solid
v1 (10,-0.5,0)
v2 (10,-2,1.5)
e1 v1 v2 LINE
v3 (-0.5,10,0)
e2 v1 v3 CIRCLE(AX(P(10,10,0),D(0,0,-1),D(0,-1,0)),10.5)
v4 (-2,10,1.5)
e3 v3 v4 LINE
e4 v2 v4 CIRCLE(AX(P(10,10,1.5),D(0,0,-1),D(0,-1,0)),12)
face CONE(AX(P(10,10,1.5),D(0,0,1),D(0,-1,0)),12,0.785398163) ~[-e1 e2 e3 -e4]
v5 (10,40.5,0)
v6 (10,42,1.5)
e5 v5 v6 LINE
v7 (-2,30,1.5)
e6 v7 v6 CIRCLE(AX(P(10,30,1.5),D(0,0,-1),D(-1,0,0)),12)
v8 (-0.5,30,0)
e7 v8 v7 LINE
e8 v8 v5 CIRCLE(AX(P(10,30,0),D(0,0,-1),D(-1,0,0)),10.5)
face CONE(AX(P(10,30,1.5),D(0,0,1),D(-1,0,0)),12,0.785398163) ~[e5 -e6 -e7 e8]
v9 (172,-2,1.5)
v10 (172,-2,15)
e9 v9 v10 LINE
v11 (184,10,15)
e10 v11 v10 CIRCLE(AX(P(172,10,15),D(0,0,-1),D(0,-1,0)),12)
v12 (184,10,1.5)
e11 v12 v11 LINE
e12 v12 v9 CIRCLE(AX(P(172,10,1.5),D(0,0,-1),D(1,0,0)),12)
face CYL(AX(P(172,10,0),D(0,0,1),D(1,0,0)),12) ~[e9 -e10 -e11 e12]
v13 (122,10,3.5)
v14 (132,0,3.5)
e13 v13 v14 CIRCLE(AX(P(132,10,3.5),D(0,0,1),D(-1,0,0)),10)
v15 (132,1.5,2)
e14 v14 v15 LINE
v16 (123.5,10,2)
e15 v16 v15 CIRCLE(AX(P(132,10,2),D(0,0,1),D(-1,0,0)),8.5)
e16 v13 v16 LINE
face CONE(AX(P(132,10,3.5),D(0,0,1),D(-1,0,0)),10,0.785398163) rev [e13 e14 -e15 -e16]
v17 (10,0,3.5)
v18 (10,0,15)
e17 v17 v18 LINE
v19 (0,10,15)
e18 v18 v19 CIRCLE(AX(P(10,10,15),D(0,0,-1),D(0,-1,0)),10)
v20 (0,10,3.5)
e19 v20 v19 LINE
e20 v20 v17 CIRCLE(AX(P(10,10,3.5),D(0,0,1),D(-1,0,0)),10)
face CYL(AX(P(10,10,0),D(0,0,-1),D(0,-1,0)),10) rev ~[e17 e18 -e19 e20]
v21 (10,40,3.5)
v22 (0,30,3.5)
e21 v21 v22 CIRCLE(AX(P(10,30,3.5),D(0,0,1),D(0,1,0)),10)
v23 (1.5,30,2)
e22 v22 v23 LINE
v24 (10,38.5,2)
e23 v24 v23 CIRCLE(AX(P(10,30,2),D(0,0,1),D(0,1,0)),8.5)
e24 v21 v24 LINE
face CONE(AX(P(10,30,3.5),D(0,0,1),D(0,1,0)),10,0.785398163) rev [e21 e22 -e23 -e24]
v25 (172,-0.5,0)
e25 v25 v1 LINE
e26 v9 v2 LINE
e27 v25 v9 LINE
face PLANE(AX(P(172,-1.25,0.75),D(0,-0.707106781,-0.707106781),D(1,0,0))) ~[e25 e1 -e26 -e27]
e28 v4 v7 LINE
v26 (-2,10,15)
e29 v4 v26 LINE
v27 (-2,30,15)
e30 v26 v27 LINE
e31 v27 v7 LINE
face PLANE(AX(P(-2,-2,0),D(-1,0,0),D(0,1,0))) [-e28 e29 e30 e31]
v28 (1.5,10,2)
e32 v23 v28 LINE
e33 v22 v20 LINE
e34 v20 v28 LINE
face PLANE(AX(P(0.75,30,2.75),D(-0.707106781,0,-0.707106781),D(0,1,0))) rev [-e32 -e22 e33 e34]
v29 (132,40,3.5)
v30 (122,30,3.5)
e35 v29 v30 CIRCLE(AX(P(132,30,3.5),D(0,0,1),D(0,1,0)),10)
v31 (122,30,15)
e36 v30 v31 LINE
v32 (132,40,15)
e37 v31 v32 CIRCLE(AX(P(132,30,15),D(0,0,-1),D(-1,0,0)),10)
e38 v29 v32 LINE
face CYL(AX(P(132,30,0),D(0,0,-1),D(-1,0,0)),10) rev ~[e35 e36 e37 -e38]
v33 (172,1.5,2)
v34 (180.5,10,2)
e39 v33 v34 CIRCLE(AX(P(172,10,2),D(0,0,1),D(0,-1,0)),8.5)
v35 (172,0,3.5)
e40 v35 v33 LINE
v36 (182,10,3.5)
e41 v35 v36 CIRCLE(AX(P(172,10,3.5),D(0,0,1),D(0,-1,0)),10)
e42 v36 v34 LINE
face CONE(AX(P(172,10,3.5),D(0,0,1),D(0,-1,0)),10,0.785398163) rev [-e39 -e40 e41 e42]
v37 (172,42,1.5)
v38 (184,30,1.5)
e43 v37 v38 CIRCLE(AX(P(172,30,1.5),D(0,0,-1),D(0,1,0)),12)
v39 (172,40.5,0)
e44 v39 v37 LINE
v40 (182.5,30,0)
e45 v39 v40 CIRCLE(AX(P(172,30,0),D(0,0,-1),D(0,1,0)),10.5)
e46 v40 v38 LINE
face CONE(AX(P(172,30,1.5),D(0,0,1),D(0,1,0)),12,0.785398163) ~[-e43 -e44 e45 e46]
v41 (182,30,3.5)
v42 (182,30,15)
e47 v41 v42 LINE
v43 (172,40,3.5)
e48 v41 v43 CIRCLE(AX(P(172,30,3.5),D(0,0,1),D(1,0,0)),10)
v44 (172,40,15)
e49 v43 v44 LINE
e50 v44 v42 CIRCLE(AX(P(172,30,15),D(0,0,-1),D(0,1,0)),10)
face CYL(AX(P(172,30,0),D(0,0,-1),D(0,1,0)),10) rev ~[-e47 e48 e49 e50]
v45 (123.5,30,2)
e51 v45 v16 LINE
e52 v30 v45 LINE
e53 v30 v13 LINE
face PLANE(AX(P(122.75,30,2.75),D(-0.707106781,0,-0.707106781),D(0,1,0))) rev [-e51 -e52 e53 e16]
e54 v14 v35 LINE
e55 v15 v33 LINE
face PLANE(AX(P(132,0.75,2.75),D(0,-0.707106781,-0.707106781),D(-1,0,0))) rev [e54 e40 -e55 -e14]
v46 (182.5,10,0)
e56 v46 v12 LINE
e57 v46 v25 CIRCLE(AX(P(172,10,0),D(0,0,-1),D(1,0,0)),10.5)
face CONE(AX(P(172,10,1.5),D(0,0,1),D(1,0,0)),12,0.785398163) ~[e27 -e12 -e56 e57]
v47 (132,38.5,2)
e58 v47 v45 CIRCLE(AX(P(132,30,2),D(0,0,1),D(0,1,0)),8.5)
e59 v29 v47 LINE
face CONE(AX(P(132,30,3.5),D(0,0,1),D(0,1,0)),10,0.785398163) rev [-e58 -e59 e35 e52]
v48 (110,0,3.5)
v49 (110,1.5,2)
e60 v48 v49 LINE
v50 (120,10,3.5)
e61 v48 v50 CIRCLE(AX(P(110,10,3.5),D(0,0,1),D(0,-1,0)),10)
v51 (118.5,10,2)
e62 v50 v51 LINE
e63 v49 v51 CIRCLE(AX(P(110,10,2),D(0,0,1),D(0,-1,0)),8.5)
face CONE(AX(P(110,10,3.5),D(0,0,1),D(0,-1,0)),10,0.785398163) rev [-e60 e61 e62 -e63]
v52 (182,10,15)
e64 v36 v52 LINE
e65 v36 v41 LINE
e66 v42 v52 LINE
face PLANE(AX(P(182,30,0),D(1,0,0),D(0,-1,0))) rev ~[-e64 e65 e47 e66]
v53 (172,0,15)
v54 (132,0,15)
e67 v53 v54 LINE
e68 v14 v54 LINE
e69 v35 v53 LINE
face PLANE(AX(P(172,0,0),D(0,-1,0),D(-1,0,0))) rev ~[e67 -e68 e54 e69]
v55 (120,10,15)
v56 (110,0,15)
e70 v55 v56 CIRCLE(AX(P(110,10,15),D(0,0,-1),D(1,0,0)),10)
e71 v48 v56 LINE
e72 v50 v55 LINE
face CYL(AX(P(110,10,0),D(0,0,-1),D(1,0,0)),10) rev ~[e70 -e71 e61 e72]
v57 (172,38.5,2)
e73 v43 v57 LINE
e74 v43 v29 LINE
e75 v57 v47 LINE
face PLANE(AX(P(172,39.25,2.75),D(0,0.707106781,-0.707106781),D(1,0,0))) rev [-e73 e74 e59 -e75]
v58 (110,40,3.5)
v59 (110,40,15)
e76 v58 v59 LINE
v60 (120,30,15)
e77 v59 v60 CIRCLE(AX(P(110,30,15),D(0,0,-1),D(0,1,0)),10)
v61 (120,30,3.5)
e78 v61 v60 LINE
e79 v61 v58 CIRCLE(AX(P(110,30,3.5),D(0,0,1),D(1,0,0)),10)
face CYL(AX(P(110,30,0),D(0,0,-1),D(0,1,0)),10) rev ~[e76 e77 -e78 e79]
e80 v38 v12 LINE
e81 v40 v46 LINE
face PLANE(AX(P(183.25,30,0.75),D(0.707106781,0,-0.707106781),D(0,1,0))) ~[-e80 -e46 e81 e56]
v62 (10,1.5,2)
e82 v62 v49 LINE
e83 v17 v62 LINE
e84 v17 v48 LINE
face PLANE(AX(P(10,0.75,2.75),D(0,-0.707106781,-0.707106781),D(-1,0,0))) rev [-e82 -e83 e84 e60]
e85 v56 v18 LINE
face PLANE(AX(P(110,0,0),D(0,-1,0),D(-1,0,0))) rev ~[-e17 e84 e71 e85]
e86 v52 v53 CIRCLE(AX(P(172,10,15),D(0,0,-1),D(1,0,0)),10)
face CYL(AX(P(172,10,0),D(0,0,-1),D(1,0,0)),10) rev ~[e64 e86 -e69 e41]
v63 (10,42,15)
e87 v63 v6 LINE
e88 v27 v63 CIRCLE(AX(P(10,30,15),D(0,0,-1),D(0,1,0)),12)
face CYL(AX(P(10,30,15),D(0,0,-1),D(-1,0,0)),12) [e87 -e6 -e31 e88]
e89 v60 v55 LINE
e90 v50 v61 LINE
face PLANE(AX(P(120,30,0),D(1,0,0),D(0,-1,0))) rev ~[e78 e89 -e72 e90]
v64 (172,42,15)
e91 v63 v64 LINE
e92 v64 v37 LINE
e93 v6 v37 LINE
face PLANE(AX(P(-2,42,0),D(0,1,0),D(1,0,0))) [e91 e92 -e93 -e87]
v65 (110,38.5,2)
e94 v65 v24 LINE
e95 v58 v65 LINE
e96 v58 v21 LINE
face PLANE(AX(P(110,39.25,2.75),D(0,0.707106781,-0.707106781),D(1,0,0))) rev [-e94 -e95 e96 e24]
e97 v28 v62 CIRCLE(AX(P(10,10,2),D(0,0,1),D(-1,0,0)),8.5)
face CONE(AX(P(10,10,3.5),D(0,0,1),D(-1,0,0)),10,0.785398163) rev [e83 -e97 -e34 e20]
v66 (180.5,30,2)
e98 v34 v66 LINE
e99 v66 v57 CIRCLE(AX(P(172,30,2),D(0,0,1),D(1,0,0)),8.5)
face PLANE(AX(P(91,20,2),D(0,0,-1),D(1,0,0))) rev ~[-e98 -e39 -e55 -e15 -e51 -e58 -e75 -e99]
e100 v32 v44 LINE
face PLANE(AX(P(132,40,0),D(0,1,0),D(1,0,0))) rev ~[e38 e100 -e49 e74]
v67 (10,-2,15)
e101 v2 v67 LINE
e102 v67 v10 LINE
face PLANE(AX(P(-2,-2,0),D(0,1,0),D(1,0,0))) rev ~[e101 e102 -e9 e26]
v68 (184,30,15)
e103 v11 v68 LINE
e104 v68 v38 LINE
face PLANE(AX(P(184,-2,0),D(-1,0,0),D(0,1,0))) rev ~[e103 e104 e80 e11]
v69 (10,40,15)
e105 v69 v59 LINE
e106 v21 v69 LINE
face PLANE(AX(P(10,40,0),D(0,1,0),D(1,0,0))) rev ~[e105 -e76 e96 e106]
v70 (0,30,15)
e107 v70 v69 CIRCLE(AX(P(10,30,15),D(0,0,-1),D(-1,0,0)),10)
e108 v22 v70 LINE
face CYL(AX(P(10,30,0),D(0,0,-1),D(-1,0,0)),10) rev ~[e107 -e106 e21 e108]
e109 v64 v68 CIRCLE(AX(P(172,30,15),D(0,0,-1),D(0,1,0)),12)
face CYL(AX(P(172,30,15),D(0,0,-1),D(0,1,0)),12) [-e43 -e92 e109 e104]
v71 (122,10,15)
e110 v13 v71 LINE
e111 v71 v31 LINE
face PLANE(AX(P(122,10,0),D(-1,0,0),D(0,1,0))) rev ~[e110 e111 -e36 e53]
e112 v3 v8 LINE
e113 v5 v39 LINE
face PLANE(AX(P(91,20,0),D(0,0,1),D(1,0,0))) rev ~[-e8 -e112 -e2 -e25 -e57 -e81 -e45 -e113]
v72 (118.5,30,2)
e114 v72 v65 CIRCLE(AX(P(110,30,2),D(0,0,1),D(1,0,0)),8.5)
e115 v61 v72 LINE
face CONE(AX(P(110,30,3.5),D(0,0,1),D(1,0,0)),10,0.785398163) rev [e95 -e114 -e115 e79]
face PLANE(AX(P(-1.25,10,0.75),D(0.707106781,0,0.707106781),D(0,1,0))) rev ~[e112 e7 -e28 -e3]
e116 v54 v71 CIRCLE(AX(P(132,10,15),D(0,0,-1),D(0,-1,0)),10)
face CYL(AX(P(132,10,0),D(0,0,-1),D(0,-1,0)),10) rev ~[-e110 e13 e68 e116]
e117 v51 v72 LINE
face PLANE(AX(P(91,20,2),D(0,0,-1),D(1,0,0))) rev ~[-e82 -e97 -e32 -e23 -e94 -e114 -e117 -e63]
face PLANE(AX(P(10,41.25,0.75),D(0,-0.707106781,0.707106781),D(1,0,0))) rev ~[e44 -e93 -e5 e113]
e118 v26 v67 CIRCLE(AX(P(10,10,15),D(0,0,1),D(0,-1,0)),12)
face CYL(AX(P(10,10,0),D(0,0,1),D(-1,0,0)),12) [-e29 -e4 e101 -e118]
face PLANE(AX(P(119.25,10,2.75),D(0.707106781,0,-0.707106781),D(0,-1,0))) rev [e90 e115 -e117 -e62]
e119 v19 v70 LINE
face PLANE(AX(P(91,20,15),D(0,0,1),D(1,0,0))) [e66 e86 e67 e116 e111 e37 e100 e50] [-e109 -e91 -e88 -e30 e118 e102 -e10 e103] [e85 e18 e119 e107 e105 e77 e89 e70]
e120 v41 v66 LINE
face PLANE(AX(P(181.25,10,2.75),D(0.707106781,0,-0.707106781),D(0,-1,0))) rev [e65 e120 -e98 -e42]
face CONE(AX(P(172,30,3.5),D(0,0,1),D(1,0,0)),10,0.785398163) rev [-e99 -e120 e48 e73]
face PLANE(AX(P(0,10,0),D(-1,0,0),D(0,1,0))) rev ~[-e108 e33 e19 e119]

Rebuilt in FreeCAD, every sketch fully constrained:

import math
import FreeCAD as App
import Part
import Sketcher
Q = App.Units.Quantity


def edges_at(feature, points):
    """Names of the edges that pass closest to the given points."""
    edges = feature.Shape.Edges
    near = lambda p: min(range(len(edges)), key=lambda i: edges[i].distToShape(Part.Vertex(*p))[0])
    return sorted({f"Edge{near(p) + 1}" for p in points})


def add_polygon(sketch, points):
    """Adds a closed chain of lines whose ends are joined by coincident constraints."""
    first, n = sketch.GeometryCount, len(points)
    for a, b in zip(points, points[1:] + points[:1]):
        sketch.addGeometry(Part.LineSegment(App.Vector(*a, 0), App.Vector(*b, 0)), False)
    for i in range(n):
        sketch.addConstraint(Sketcher.Constraint("Coincident", first + i, 2, first + (i + 1) % n, 1))

doc = App.newDocument("Part")
params = doc.addObject("Spreadsheet::Sheet", "Params")
for row, (alias, value) in enumerate([
    ("sketch1_radius", "10 mm"),
    ("sketch1_width", "186 mm"),
    ("sketch1_width2", "40 mm"),
    ("sketch1_width3", "100 mm"),
    ("sketch1_height", "44 mm"),
    ("pad1_length", "15 mm"),
    ("sketch2_width", "186 mm"),
    ("sketch2_height", "44 mm"),
    ("pad2_length", "2 mm"),
    ("fillet_radius", "12 mm"),
    ("chamfer_size", "1.5 mm"),
], start=1):
    params.set(f"A{row}", alias)
    params.set(f"B{row}", "=" + value)
    params.setAlias(f"B{row}", alias)

body = doc.addObject("PartDesign::Body", "Body")

sketch1 = body.newObject("Sketcher::SketchObject", "Sketch")
sketch1.AttachmentSupport = (doc.getObject("XY_Plane"), [""])
sketch1.MapMode = "FlatFace"
add_polygon(sketch1, [(-2, 42), (-2, -2), (184, -2), (184, 42)])
sketch1.addGeometry(Part.LineSegment(App.Vector(122, 10, 0), App.Vector(122, 30, 0)), False)
sketch1.addGeometry(Part.ArcOfCircle(Part.Circle(App.Vector(132, 30, 0), App.Vector(0, 0, 1), 10), math.radians(90), math.radians(180)), False)
sketch1.addGeometry(Part.LineSegment(App.Vector(132, 40, 0), App.Vector(172, 40, 0)), False)
sketch1.addGeometry(Part.ArcOfCircle(Part.Circle(App.Vector(172, 30, 0), App.Vector(0, 0, 1), 10), math.radians(0), math.radians(90)), False)
sketch1.addGeometry(Part.LineSegment(App.Vector(182, 30, 0), App.Vector(182, 10, 0)), False)
sketch1.addGeometry(Part.ArcOfCircle(Part.Circle(App.Vector(172, 10, 0), App.Vector(0, 0, 1), 10), math.radians(-90), math.radians(0)), False)
sketch1.addGeometry(Part.LineSegment(App.Vector(172, 0, 0), App.Vector(132, 0, 0)), False)
sketch1.addGeometry(Part.ArcOfCircle(Part.Circle(App.Vector(132, 10, 0), App.Vector(0, 0, 1), 10), math.radians(180), math.radians(270)), False)
sketch1.addGeometry(Part.ArcOfCircle(Part.Circle(App.Vector(110, 10, 0), App.Vector(0, 0, 1), 10), math.radians(-90), math.radians(0)), False)
sketch1.addGeometry(Part.LineSegment(App.Vector(110, 0, 0), App.Vector(10, 0, 0)), False)
sketch1.addGeometry(Part.ArcOfCircle(Part.Circle(App.Vector(10, 10, 0), App.Vector(0, 0, 1), 10), math.radians(180), math.radians(270)), False)
sketch1.addGeometry(Part.LineSegment(App.Vector(0, 10, 0), App.Vector(0, 30, 0)), False)
sketch1.addGeometry(Part.ArcOfCircle(Part.Circle(App.Vector(10, 30, 0), App.Vector(0, 0, 1), 10), math.radians(90), math.radians(180)), False)
sketch1.addGeometry(Part.LineSegment(App.Vector(10, 40, 0), App.Vector(110, 40, 0)), False)
sketch1.addGeometry(Part.ArcOfCircle(Part.Circle(App.Vector(110, 30, 0), App.Vector(0, 0, 1), 10), math.radians(0), math.radians(90)), False)
sketch1.addGeometry(Part.LineSegment(App.Vector(120, 30, 0), App.Vector(120, 10, 0)), False)
sketch1.addConstraint(Sketcher.Constraint("Tangent", 4, 2, 5, 2))
sketch1.addConstraint(Sketcher.Constraint("Tangent", 5, 1, 6, 1))
sketch1.addConstraint(Sketcher.Constraint("Tangent", 6, 2, 7, 2))
sketch1.addConstraint(Sketcher.Constraint("Tangent", 7, 1, 8, 1))
sketch1.addConstraint(Sketcher.Constraint("Tangent", 8, 2, 9, 2))
sketch1.addConstraint(Sketcher.Constraint("Tangent", 9, 1, 10, 1))
sketch1.addConstraint(Sketcher.Constraint("Tangent", 10, 2, 11, 2))
sketch1.addConstraint(Sketcher.Constraint("Tangent", 11, 1, 4, 1))
sketch1.addConstraint(Sketcher.Constraint("Tangent", 12, 1, 13, 1))
sketch1.addConstraint(Sketcher.Constraint("Tangent", 13, 2, 14, 2))
sketch1.addConstraint(Sketcher.Constraint("Tangent", 14, 1, 15, 1))
sketch1.addConstraint(Sketcher.Constraint("Tangent", 15, 2, 16, 2))
sketch1.addConstraint(Sketcher.Constraint("Tangent", 16, 1, 17, 1))
sketch1.addConstraint(Sketcher.Constraint("Tangent", 17, 2, 18, 2))
sketch1.addConstraint(Sketcher.Constraint("Tangent", 18, 1, 19, 1))
sketch1.addConstraint(Sketcher.Constraint("Tangent", 19, 2, 12, 2))
sketch1.addConstraint(Sketcher.Constraint("Vertical", 0))
sketch1.addConstraint(Sketcher.Constraint("Horizontal", 1))
sketch1.addConstraint(Sketcher.Constraint("Vertical", 2))
sketch1.addConstraint(Sketcher.Constraint("Horizontal", 3))
sketch1.addConstraint(Sketcher.Constraint("Vertical", 4))
sketch1.addConstraint(Sketcher.Constraint("Horizontal", 6))
sketch1.addConstraint(Sketcher.Constraint("Vertical", 8))
sketch1.addConstraint(Sketcher.Constraint("Horizontal", 10))
sketch1.addConstraint(Sketcher.Constraint("Horizontal", 13))
sketch1.addConstraint(Sketcher.Constraint("Vertical", 15))
sketch1.addConstraint(Sketcher.Constraint("Horizontal", 17))
sketch1.addConstraint(Sketcher.Constraint("Vertical", 19))
sketch1.addConstraint(Sketcher.Constraint("Equal", 5, 7))
sketch1.addConstraint(Sketcher.Constraint("Equal", 7, 9))
sketch1.addConstraint(Sketcher.Constraint("Equal", 9, 11))
sketch1.addConstraint(Sketcher.Constraint("Equal", 11, 12))
sketch1.addConstraint(Sketcher.Constraint("Equal", 12, 14))
sketch1.addConstraint(Sketcher.Constraint("Equal", 14, 16))
sketch1.addConstraint(Sketcher.Constraint("Equal", 16, 18))
sketch1.addConstraint(Sketcher.Constraint("PointOnObject", 9, 1, -1))
sketch1.addConstraint(Sketcher.Constraint("PointOnObject", 12, 1, -1))
sketch1.addConstraint(Sketcher.Constraint("PointOnObject", 14, 1, -2))
sketch1.addConstraint(Sketcher.Constraint("Horizontal", 7, 3, 16, 3))
sketch1.addConstraint(Sketcher.Constraint("Radius", 5, Q("10 mm")))
sketch1.addConstraint(Sketcher.Constraint("DistanceX", 1, 1, 1, 2, Q("186 mm")))
sketch1.addConstraint(Sketcher.Constraint("DistanceX", 6, 1, 6, 2, Q("40 mm")))
sketch1.addConstraint(Sketcher.Constraint("DistanceX", 13, 2, 13, 1, Q("100 mm")))
sketch1.addConstraint(Sketcher.Constraint("DistanceY", 0, 2, 0, 1, Q("44 mm")))
sketch1.addConstraint(Sketcher.Constraint("DistanceY", 4, 1, 4, 2, Q("20 mm")))
sketch1.addConstraint(Sketcher.Constraint("DistanceX", -1, 1, 5, 3, Q("132 mm")))
sketch1.addConstraint(Sketcher.Constraint("DistanceX", 0, 2, -1, 1, Q("2 mm")))
sketch1.addConstraint(Sketcher.Constraint("DistanceY", 0, 2, -1, 1, Q("2 mm")))
sketch1.setExpression("Constraints[43]", "Params.sketch1_radius")
sketch1.setExpression("Constraints[44]", "Params.sketch1_width")
sketch1.setExpression("Constraints[45]", "Params.sketch1_width2")
sketch1.setExpression("Constraints[46]", "Params.sketch1_width3")
sketch1.setExpression("Constraints[47]", "Params.sketch1_height")
pad1 = body.newObject("PartDesign::Pad", "Pad")
pad1.Profile = sketch1
pad1.setExpression("Length", "Params.pad1_length")

sketch2 = body.newObject("Sketcher::SketchObject", "Sketch001")
sketch2.AttachmentSupport = (doc.getObject("XY_Plane"), [""])
sketch2.MapMode = "FlatFace"
add_polygon(sketch2, [(-2, -2), (-2, 42), (184, 42), (184, -2)])
sketch2.addConstraint(Sketcher.Constraint("Vertical", 0))
sketch2.addConstraint(Sketcher.Constraint("Horizontal", 1))
sketch2.addConstraint(Sketcher.Constraint("Vertical", 2))
sketch2.addConstraint(Sketcher.Constraint("Horizontal", 3))
sketch2.addConstraint(Sketcher.Constraint("DistanceX", 1, 1, 1, 2, Q("186 mm")))
sketch2.addConstraint(Sketcher.Constraint("DistanceY", 0, 1, 0, 2, Q("44 mm")))
sketch2.addConstraint(Sketcher.Constraint("DistanceX", 0, 2, -1, 1, Q("2 mm")))
sketch2.addConstraint(Sketcher.Constraint("DistanceY", -1, 1, 0, 2, Q("42 mm")))
sketch2.setExpression("Constraints[8]", "Params.sketch2_width")
sketch2.setExpression("Constraints[9]", "Params.sketch2_height")
pad2 = body.newObject("PartDesign::Pad", "Pad001")
pad2.Profile = sketch2
pad2.setExpression("Length", "Params.pad2_length")
doc.recompute()

fillet = body.newObject("PartDesign::Fillet", "Fillet")
fillet.Base = (pad2, edges_at(pad2, [
    (-2, -2, 7.5),
    (-2, 42, 7.5),
    (184, -2, 7.5),
    (184, 42, 7.5),
]))
fillet.setExpression("Radius", "Params.fillet_radius")
doc.recompute()

chamfer = body.newObject("PartDesign::Chamfer", "Chamfer")
chamfer.Base = (fillet, edges_at(fillet, [
    (60, 0, 2),
    (117.071, 2.929, 2),
    (120, 20, 2),
    (117.071, 37.071, 2),
    (60, 40, 2),
    (2.929, 37.071, 2),
    (0, 20, 2),
    (2.929, 2.929, 2),
    (152, 0, 2),
    (179.071, 2.929, 2),
    (182, 20, 2),
    (179.071, 37.071, 2),
    (152, 40, 2),
    (124.929, 37.071, 2),
    (122, 20, 2),
    (124.929, 2.929, 2),
    (180.485, 1.515, 0),
]))
chamfer.setExpression("Size", "Params.chamfer_size")

doc.recompute()
